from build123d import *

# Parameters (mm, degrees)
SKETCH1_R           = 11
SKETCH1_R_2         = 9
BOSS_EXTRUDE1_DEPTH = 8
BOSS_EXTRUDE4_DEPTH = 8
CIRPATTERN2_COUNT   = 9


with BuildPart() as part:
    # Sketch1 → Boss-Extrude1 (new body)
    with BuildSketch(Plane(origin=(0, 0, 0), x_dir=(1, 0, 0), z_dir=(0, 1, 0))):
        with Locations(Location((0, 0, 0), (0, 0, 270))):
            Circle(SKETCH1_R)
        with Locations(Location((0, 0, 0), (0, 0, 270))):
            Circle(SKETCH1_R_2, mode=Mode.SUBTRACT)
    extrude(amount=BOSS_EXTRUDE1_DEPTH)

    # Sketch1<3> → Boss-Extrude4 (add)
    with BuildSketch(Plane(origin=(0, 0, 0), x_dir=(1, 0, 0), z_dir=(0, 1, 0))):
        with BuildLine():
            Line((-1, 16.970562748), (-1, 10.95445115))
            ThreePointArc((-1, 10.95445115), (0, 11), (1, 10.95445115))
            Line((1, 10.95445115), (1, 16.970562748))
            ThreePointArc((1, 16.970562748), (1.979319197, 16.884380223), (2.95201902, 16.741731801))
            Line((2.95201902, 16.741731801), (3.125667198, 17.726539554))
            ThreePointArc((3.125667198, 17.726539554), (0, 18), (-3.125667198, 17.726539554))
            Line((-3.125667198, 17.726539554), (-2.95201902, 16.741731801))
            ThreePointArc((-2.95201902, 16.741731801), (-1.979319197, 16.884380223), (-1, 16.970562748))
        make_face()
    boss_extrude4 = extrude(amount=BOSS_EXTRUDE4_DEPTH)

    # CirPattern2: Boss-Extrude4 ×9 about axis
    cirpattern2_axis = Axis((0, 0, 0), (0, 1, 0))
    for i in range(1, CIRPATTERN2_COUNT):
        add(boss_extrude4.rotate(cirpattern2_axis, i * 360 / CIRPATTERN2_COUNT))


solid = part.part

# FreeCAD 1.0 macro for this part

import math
import FreeCAD as App
import Part
import Sketcher
Q = App.Units.Quantity

doc = App.newDocument("Part")
body = doc.addObject("PartDesign::Body", "Body")

sketch1 = doc.addObject("Sketcher::SketchObject", "Sketch")
body.addObject(sketch1)
sketch1.AttachmentSupport = (doc.XZ_Plane, [""])
sketch1.MapMode = "FlatFace"
sketch1.addGeometry(Part.Circle(App.Vector(0, 0, 0), App.Vector(0, 0, 1), 11), False)
sketch1.addGeometry(Part.Circle(App.Vector(0, 0, 0), App.Vector(0, 0, 1), 9), False)
sketch1.addConstraint(Sketcher.Constraint("Coincident", 0, 3, -1, 1))
sketch1.addConstraint(Sketcher.Constraint("Coincident", 1, 3, -1, 1))
sketch1.addConstraint(Sketcher.Constraint("Diameter", 0, Q("22 mm")))
sketch1.addConstraint(Sketcher.Constraint("Diameter", 1, Q("18 mm")))
pad1 = doc.addObject("PartDesign::Pad", "Pad")
body.addObject(pad1)
pad1.Profile = sketch1
pad1.Length = 8
pad1.Reversed = True

sketch2 = doc.addObject("Sketcher::SketchObject", "Sketch001")
body.addObject(sketch2)
sketch2.AttachmentSupport = (doc.XZ_Plane, [""])
sketch2.MapMode = "FlatFace"
sketch2.addGeometry(Part.LineSegment(App.Vector(-1, -16.970563, 0), App.Vector(-1, -10.954451, 0)), False)
sketch2.addGeometry(Part.ArcOfCircle(Part.Circle(App.Vector(0, 0, 0), App.Vector(0, 0, 1), 11), math.radians(-95.215909), math.radians(-84.784091)), False)
sketch2.addGeometry(Part.LineSegment(App.Vector(1, -10.954451, 0), App.Vector(1, -16.970563, 0)), False)
sketch2.addGeometry(Part.ArcOfCircle(Part.Circle(App.Vector(0, 0, 0), App.Vector(0, 0, 1), 17), math.radians(-86.627713), math.radians(-80)), False)
sketch2.addGeometry(Part.LineSegment(App.Vector(2.952019, -16.741732, 0), App.Vector(3.125667, -17.72654, 0)), False)
sketch2.addGeometry(Part.ArcOfCircle(Part.Circle(App.Vector(0, 0, 0), App.Vector(0, 0, 1), 18), math.radians(-100), math.radians(-80)), False)
sketch2.addGeometry(Part.LineSegment(App.Vector(-3.125667, -17.72654, 0), App.Vector(-2.952019, -16.741732, 0)), False)
sketch2.addGeometry(Part.ArcOfCircle(Part.Circle(App.Vector(0, 0, 0), App.Vector(0, 0, 1), 17), math.radians(-100), math.radians(-93.372287)), False)
sketch2.addConstraint(Sketcher.Constraint("Coincident", 0, 2, 1, 1))
sketch2.addConstraint(Sketcher.Constraint("Coincident", 1, 2, 2, 1))
sketch2.addConstraint(Sketcher.Constraint("Coincident", 2, 2, 3, 1))
sketch2.addConstraint(Sketcher.Constraint("Coincident", 3, 2, 4, 1))
sketch2.addConstraint(Sketcher.Constraint("Coincident", 4, 2, 5, 2))
sketch2.addConstraint(Sketcher.Constraint("Coincident", 5, 1, 6, 1))
sketch2.addConstraint(Sketcher.Constraint("Coincident", 6, 2, 7, 1))
sketch2.addConstraint(Sketcher.Constraint("Coincident", 7, 2, 0, 1))
sketch2.addConstraint(Sketcher.Constraint("Vertical", 0))
sketch2.addConstraint(Sketcher.Constraint("Vertical", 2))
sketch2.addConstraint(Sketcher.Constraint("Coincident", 1, 3, -1, 1))
sketch2.addConstraint(Sketcher.Constraint("Coincident", 3, 3, -1, 1))
sketch2.addConstraint(Sketcher.Constraint("Coincident", 5, 3, -1, 1))
sketch2.addConstraint(Sketcher.Constraint("Coincident", 7, 3, -1, 1))
sketch2.addConstraint(Sketcher.Constraint("Equal", 3, 7))
sketch2.addConstraint(Sketcher.Constraint("Horizontal", 0, 2, 1, 2))
sketch2.addConstraint(Sketcher.Constraint("Horizontal", 4, 2, 5, 1))
sketch2.addConstraint(Sketcher.Constraint("Horizontal", 3, 2, 6, 2))
sketch2.addConstraint(Sketcher.Constraint("Radius", 1, Q("11 mm")))
sketch2.addConstraint(Sketcher.Constraint("Radius", 3, Q("17 mm")))
sketch2.addConstraint(Sketcher.Constraint("Radius", 5, Q("18 mm")))
sketch2.addConstraint(Sketcher.Constraint("Angle", 4, Q("-80 deg")))
sketch2.addConstraint(Sketcher.Constraint("DistanceX", 0, 2, -1, 1, Q("1 mm")))
sketch2.addConstraint(Sketcher.Constraint("DistanceX", -1, 1, 3, 2, Q("2.952019 mm")))
pad2 = doc.addObject("PartDesign::Pad", "Pad001")
body.addObject(pad2)
pad2.Profile = sketch2
pad2.Length = 8
pad2.Reversed = True
doc.recompute()

polarpattern = doc.addObject("PartDesign::PolarPattern", "PolarPattern")
body.addObject(polarpattern)
polarpattern.Originals = [pad2]
polarpattern.Axis = (doc.Y_Axis, [""])
polarpattern.Angle = 360
polarpattern.Occurrences = 9
body.Tip = polarpattern

doc.recompute()
